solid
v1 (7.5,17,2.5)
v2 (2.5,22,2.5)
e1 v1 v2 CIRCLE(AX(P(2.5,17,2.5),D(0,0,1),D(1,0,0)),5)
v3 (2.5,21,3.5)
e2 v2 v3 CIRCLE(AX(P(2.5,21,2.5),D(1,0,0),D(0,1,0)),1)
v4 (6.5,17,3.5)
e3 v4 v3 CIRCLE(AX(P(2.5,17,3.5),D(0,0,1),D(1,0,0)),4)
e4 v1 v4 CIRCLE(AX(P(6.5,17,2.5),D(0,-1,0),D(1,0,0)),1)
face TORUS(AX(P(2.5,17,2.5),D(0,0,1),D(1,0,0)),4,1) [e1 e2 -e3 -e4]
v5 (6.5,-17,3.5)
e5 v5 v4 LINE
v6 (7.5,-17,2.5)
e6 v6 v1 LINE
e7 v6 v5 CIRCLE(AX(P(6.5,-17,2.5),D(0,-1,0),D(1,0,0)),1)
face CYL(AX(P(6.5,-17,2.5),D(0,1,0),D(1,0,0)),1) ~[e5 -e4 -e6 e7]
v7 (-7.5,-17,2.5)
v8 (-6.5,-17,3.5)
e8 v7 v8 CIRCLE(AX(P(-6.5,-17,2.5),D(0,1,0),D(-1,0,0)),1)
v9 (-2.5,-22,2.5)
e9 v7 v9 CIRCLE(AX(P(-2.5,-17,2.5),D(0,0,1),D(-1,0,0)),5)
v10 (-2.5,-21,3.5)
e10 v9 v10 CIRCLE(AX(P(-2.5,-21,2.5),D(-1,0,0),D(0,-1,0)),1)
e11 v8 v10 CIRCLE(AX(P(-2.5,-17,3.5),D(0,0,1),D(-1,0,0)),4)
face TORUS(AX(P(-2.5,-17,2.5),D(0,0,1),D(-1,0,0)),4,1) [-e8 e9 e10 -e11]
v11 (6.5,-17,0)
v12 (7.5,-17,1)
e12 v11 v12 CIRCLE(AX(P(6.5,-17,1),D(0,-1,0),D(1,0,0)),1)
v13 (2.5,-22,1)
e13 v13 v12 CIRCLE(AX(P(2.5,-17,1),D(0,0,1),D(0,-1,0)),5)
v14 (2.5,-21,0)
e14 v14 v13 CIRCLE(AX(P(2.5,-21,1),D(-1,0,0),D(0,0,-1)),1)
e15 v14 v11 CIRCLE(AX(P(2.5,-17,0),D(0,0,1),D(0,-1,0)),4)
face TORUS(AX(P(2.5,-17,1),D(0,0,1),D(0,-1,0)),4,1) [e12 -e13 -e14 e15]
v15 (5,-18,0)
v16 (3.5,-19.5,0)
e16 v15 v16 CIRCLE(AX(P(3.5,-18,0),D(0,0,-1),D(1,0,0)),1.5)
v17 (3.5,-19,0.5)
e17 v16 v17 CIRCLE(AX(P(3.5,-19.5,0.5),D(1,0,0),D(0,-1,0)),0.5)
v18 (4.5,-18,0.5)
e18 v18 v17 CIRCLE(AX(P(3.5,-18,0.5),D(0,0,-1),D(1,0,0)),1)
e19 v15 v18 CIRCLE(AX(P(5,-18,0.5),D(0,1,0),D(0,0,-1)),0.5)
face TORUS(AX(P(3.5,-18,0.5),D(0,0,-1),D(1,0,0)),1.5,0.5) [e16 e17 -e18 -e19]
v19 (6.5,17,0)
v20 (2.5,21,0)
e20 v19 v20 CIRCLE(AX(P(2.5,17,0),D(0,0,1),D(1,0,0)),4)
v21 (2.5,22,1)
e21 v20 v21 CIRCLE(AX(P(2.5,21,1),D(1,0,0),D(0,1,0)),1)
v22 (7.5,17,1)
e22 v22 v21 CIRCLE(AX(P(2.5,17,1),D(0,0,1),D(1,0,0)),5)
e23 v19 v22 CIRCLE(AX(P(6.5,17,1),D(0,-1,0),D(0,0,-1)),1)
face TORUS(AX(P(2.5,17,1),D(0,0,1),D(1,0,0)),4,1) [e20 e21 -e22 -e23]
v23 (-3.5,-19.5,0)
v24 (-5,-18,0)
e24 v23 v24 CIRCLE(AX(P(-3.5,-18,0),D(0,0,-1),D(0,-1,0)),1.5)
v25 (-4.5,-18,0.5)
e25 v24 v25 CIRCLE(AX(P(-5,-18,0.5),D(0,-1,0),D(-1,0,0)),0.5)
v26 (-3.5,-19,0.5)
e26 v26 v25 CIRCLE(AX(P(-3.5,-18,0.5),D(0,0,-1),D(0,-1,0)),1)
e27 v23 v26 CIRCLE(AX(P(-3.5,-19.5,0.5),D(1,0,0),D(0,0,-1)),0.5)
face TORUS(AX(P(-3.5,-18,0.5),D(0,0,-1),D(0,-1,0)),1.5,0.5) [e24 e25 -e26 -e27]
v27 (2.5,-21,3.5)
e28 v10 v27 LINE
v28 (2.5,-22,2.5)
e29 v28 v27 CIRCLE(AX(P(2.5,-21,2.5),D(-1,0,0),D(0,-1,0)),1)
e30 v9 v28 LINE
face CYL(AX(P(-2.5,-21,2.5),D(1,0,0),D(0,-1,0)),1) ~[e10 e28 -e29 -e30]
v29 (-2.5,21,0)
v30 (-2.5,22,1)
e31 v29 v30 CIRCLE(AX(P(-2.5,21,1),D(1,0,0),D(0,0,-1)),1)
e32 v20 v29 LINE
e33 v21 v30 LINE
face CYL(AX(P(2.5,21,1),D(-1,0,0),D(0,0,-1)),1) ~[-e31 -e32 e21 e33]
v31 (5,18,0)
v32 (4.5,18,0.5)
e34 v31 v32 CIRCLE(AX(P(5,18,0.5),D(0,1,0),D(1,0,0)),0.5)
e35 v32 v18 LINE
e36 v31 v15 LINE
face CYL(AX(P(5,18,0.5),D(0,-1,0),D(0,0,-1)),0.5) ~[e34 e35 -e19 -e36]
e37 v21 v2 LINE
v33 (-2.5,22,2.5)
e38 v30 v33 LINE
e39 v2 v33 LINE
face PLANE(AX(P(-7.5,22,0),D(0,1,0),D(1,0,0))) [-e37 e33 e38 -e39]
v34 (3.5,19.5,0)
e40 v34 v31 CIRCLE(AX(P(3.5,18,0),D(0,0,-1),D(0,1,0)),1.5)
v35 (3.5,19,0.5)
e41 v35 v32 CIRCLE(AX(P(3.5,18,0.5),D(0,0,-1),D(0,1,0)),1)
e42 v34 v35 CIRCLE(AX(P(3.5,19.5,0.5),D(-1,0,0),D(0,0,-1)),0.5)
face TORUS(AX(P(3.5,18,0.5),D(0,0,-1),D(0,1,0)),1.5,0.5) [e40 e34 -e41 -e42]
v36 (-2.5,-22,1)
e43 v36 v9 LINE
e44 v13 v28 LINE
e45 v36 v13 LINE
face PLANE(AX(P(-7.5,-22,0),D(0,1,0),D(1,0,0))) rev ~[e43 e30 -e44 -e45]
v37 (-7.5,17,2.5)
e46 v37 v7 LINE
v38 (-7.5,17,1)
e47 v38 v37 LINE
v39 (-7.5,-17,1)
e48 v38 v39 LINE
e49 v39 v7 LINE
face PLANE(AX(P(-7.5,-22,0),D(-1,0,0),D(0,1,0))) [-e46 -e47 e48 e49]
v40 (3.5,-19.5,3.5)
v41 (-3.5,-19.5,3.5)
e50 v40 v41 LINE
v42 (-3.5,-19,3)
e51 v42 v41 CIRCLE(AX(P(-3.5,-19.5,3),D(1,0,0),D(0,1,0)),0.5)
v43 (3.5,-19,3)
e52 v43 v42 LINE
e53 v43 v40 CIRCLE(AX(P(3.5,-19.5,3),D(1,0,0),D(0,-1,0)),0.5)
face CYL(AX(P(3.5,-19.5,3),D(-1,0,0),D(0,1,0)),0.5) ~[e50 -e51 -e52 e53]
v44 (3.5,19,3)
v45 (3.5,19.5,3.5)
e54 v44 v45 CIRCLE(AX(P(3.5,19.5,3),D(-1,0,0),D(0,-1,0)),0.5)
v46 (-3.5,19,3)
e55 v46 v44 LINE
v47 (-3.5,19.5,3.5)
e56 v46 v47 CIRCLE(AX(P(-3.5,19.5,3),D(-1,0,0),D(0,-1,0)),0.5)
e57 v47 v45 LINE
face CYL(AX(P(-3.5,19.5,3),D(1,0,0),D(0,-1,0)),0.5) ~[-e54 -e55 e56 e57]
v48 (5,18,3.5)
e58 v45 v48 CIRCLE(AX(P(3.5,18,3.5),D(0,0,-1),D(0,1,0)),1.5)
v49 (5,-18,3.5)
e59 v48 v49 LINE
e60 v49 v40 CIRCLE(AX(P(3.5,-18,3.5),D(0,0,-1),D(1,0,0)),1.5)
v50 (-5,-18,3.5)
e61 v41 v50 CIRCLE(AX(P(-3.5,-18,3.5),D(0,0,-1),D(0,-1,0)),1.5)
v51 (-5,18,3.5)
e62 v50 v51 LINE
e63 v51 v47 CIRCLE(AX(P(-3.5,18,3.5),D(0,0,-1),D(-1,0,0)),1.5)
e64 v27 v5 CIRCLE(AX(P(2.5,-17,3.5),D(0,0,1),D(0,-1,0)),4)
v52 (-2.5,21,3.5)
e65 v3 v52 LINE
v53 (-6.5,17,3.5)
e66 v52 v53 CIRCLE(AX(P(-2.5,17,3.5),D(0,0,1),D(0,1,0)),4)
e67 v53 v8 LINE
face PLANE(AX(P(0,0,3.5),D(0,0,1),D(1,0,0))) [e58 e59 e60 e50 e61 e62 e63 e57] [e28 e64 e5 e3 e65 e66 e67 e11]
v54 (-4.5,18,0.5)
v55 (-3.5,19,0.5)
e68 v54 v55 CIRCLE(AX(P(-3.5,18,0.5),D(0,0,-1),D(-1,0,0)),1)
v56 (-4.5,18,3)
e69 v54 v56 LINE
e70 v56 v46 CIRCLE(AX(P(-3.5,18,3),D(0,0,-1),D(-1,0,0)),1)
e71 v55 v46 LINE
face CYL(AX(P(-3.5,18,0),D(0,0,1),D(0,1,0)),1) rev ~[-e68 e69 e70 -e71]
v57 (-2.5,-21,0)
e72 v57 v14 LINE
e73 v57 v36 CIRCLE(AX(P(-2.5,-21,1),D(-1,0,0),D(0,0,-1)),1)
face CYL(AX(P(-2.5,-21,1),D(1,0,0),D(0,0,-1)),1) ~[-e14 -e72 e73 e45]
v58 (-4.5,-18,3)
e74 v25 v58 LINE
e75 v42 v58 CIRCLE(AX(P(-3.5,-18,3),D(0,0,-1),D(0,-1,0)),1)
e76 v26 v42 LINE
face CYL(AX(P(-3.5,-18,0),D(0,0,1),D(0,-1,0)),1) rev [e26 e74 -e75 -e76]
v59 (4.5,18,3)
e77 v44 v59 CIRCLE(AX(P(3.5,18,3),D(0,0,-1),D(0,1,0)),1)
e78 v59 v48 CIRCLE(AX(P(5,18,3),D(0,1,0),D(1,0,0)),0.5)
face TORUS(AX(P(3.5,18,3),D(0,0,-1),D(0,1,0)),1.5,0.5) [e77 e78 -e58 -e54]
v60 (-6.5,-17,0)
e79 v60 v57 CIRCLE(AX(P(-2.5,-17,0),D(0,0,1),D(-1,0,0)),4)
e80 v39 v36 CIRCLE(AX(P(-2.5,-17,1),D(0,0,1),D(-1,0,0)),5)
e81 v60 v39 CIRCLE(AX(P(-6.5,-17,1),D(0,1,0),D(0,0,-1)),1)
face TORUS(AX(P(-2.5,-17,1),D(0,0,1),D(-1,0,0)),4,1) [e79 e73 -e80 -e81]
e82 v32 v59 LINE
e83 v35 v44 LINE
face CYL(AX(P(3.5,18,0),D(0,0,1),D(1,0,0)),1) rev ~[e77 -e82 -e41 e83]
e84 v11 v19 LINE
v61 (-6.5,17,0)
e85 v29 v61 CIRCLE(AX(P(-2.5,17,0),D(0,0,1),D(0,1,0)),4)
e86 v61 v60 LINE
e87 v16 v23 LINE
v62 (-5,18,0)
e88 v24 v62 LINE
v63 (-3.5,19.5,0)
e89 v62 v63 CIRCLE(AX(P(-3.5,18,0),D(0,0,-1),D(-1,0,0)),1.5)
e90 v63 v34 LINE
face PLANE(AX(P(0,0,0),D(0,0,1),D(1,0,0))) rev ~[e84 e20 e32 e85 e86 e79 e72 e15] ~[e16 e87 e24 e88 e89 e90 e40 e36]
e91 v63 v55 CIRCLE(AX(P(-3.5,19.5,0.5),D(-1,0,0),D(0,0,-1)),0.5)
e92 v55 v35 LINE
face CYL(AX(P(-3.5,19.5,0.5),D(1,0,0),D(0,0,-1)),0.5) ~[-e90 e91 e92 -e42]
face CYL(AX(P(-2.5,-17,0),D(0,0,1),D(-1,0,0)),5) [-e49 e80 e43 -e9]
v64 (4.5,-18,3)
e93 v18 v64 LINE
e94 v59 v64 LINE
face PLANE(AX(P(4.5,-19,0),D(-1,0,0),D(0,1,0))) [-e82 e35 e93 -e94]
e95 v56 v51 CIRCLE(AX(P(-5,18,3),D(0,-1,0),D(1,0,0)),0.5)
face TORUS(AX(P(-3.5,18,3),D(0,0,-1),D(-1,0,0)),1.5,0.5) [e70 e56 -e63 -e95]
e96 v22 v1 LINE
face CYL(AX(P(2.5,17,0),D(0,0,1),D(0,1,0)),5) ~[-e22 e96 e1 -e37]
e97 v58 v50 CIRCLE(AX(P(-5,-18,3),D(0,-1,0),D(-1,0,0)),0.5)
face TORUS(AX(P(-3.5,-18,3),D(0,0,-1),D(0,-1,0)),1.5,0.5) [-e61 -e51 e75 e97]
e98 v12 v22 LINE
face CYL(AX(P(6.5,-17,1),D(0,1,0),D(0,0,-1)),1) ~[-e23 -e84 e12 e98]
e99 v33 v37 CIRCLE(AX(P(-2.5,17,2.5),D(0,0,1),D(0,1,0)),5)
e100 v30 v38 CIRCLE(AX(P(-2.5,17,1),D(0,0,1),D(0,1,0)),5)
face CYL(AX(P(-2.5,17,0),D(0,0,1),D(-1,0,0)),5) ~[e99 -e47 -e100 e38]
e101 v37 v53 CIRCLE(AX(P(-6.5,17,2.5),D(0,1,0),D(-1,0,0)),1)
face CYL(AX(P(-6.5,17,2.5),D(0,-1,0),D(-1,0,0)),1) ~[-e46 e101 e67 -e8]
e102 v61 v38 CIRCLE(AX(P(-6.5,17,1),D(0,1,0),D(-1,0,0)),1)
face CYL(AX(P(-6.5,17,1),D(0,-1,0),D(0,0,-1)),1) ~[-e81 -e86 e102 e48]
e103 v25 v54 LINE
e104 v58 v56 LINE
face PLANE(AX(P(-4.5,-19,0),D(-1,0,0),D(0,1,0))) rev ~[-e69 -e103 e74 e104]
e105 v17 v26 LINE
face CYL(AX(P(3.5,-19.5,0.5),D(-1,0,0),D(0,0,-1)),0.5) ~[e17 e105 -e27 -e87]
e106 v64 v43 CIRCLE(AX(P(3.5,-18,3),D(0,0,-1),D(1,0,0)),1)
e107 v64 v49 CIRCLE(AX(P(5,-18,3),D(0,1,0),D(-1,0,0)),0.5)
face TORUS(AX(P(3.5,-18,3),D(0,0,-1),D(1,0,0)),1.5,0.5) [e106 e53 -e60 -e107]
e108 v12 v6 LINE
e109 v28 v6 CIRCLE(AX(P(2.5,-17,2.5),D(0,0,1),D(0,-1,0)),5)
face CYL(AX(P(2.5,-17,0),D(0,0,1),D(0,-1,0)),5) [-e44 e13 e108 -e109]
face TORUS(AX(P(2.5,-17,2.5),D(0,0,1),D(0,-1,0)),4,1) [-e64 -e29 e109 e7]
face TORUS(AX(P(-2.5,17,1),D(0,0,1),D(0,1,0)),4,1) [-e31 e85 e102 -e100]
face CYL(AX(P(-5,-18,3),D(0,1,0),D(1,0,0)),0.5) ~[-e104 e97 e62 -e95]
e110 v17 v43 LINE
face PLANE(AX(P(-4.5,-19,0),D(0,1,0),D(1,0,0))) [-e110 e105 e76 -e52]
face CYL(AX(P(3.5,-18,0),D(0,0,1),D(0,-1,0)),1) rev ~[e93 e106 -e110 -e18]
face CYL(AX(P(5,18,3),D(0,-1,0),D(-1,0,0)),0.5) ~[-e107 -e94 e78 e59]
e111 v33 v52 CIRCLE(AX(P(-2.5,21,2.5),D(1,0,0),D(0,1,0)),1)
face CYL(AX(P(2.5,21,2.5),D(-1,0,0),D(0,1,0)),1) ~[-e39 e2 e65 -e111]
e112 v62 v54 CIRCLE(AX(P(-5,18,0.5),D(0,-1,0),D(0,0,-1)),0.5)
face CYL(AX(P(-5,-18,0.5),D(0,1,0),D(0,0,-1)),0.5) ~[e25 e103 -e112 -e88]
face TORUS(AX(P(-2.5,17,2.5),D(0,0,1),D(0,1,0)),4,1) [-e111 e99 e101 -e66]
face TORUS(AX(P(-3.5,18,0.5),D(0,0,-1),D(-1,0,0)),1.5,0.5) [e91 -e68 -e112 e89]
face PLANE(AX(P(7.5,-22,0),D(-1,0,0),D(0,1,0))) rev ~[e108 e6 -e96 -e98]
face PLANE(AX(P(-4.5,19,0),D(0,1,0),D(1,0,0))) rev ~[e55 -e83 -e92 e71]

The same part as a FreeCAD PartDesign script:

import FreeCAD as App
import Part
import Sketcher
from FreeCAD import Vector
Q = App.Units.Quantity


def edges_at(feature, points):
    """Names of the edges that pass closest to the given points."""
    edges = feature.Shape.Edges
    near = lambda p: min(range(len(edges)), key=lambda i: edges[i].distToShape(Part.Vertex(*p))[0])
    return sorted({f"Edge{near(p) + 1}" for p in points})

doc = App.newDocument("Part")
body = doc.addObject("PartDesign::Body", "Body")

# Sketch on XY plane
sketch1 = body.newObject("Sketcher::SketchObject", "Sketch")
sketch1.AttachmentSupport = (doc.getObject("XY_Plane"), [""])
sketch1.MapMode = "FlatFace"
sketch1.addGeometry([
    Part.LineSegment(Vector(-8, 22, 0), Vector(-8, -22, 0)),  # 0
    Part.LineSegment(Vector(-8, -22, 0), Vector(8, -22, 0)),  # 1
    Part.LineSegment(Vector(8, -22, 0), Vector(8, 22, 0)),  # 2
    Part.LineSegment(Vector(8, 22, 0), Vector(-8, 22, 0)),  # 3
    Part.LineSegment(Vector(4, -19, 0), Vector(-4, -19, 0)),  # 4
    Part.LineSegment(Vector(-4, -19, 0), Vector(-4, 19, 0)),  # 5
    Part.LineSegment(Vector(-4, 19, 0), Vector(4, 19, 0)),  # 6
    Part.LineSegment(Vector(4, 19, 0), Vector(4, -19, 0)),  # 7
], False)
sketch1.addConstraint([
    Sketcher.Constraint("Coincident", 0, 2, 1, 1),
    Sketcher.Constraint("Coincident", 1, 2, 2, 1),
    Sketcher.Constraint("Coincident", 2, 2, 3, 1),
    Sketcher.Constraint("Coincident", 3, 2, 0, 1),
    Sketcher.Constraint("Coincident", 4, 2, 5, 1),
    Sketcher.Constraint("Coincident", 5, 2, 6, 1),
    Sketcher.Constraint("Coincident", 6, 2, 7, 1),
    Sketcher.Constraint("Coincident", 7, 2, 4, 1),
    Sketcher.Constraint("Vertical", 0),
    Sketcher.Constraint("Horizontal", 1),
    Sketcher.Constraint("Vertical", 2),
    Sketcher.Constraint("Horizontal", 3),
    Sketcher.Constraint("Horizontal", 4),
    Sketcher.Constraint("Vertical", 5),
    Sketcher.Constraint("Horizontal", 6),
    Sketcher.Constraint("Vertical", 7),
    Sketcher.Constraint("Symmetric", 0, 2, 2, 2, -1, 1),
    Sketcher.Constraint("Symmetric", 4, 2, 6, 2, -1, 1),
    Sketcher.Constraint("DistanceX", 1, 1, 1, 2, Q("15 mm")),
    Sketcher.Constraint("DistanceX", 4, 2, 4, 1, Q("9 mm")),
    Sketcher.Constraint("DistanceY", 0, 2, 0, 1, Q("44 mm")),
    Sketcher.Constraint("DistanceY", 5, 1, 5, 2, Q("38 mm")),
])
pad1 = body.newObject("PartDesign::Pad", "Pad")
pad1.Profile = sketch1
pad1.Length = 3.5
doc.recompute()

fillet = body.newObject("PartDesign::Fillet", "Fillet")
fillet.Base = (pad1, edges_at(pad1, [
    (4.5, 19, 1.75),
    (-4.5, 19, 1.75),
    (-4.5, -19, 1.75),
    (4.5, -19, 1.75),
]))
fillet.Radius = 1
doc.recompute()

fillet2 = body.newObject("PartDesign::Fillet", "Fillet001")
fillet2.Base = (fillet, edges_at(fillet, [
    (-7.5, -22, 1.75),
    (7.5, -22, 1.75),
    (-7.5, 22, 1.75),
    (7.5, 22, 1.75),
]))
fillet2.Radius = 5
doc.recompute()

fillet3 = body.newObject("PartDesign::Fillet", "Fillet002")
fillet3.Base = (fillet2, edges_at(fillet2, [(0, 19, 0), (0, 19, 3.5)]))
fillet3.Radius = 0.5
doc.recompute()

fillet4 = body.newObject("PartDesign::Fillet", "Fillet003")
fillet4.Base = (fillet3, edges_at(fillet3, [(0, -22, 3.5), (0, -22, 0)]))
fillet4.Radius = 1

doc.recompute()
